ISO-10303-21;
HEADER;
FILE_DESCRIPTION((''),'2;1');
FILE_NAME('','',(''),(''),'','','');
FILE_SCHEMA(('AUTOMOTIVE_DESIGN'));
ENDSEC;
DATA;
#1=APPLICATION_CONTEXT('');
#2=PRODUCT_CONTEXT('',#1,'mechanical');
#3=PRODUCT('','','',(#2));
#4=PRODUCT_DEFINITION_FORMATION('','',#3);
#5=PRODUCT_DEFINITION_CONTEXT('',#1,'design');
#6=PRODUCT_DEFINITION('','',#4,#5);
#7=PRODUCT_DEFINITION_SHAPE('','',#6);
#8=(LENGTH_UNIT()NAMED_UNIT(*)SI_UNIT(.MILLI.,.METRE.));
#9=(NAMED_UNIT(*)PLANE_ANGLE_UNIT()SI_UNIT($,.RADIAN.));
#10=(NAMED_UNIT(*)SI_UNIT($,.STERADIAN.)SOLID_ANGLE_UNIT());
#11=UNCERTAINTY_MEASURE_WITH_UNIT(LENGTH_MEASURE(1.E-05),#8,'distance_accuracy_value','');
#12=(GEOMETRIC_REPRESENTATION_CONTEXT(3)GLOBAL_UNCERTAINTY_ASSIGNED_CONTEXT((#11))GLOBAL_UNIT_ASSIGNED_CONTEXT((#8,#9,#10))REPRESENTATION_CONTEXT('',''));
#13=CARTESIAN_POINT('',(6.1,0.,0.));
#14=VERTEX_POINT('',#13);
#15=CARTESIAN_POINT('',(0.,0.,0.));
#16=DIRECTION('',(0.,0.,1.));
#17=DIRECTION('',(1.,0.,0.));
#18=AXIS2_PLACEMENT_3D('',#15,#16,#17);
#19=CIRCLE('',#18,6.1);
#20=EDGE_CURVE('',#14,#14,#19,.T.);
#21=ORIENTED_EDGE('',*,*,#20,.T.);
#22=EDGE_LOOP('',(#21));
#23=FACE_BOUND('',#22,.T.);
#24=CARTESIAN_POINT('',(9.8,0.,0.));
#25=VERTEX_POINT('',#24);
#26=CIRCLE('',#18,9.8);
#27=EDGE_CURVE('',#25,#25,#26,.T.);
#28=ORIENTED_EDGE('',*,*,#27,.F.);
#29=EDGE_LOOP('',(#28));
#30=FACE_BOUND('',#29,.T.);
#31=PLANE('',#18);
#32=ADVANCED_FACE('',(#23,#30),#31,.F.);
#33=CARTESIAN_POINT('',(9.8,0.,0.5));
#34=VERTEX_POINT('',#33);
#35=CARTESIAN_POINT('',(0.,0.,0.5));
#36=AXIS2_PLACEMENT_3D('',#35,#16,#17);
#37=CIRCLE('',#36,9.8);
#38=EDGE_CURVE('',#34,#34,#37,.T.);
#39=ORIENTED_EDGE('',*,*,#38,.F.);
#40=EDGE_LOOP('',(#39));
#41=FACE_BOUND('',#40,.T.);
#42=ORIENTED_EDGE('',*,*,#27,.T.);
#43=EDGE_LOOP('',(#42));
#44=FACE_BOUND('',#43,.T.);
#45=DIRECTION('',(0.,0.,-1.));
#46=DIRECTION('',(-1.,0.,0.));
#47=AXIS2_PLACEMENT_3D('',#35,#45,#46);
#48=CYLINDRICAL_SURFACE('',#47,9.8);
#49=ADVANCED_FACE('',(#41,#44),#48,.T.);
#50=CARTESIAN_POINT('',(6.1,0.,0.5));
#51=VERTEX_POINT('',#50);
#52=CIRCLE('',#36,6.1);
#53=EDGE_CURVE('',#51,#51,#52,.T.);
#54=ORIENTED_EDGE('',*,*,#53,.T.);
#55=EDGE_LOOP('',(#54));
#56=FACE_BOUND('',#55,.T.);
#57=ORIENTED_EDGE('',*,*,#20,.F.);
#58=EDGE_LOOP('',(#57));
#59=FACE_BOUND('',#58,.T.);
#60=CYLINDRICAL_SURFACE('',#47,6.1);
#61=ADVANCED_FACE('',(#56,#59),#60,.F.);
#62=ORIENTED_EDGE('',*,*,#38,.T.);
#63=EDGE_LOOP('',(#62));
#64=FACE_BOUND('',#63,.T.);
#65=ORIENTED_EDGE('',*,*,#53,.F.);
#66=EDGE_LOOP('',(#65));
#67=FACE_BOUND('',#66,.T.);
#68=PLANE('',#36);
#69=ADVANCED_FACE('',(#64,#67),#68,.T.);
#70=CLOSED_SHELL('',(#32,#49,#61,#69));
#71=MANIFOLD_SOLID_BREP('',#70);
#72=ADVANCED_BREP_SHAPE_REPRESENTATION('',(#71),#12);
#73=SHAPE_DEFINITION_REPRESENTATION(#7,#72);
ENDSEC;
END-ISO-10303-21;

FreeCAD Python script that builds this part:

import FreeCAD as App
import Part
import Sketcher

V = App.Vector

doc = App.newDocument("Part")
params = doc.addObject("Spreadsheet::Sheet", "Params")
for row, (alias, value) in enumerate([
    ("sketch1_diameter", "19.6 mm"),
    ("sketch1_diameter2", "12.2 mm"),
    ("pad1_length", "0.5 mm"),
], start=1):
    params.set(f"A{row}", alias)
    params.set(f"B{row}", "=" + value)
    params.setAlias(f"B{row}", alias)

body = doc.addObject("PartDesign::Body", "Body")

sketch1 = body.newObject("Sketcher::SketchObject", "Sketch")
sketch1.AttachmentSupport = (doc.getObject("XY_Plane"), [""])
sketch1.MapMode = "FlatFace"
sketch1.addGeometry(Part.Circle(V(0, 0, 0), V(0, 0, 1), 10), False)
sketch1.addGeometry(Part.Circle(V(0, 0, 0), V(0, 0, 1), 6), False)
sketch1.addConstraint(Sketcher.Constraint("Coincident", 0, 3, -1, 1))
sketch1.addConstraint(Sketcher.Constraint("Coincident", 1, 3, -1, 1))
sketch1.addConstraint(Sketcher.Constraint("Diameter", 0, 19.6))
sketch1.addConstraint(Sketcher.Constraint("Diameter", 1, 12.2))
sketch1.setExpression("Constraints[2]", "Params.sketch1_diameter")
sketch1.setExpression("Constraints[3]", "Params.sketch1_diameter2")
pad1 = body.newObject("PartDesign::Pad", "Pad")
pad1.Profile = sketch1
pad1.setExpression("Length", "Params.pad1_length")

doc.recompute()
